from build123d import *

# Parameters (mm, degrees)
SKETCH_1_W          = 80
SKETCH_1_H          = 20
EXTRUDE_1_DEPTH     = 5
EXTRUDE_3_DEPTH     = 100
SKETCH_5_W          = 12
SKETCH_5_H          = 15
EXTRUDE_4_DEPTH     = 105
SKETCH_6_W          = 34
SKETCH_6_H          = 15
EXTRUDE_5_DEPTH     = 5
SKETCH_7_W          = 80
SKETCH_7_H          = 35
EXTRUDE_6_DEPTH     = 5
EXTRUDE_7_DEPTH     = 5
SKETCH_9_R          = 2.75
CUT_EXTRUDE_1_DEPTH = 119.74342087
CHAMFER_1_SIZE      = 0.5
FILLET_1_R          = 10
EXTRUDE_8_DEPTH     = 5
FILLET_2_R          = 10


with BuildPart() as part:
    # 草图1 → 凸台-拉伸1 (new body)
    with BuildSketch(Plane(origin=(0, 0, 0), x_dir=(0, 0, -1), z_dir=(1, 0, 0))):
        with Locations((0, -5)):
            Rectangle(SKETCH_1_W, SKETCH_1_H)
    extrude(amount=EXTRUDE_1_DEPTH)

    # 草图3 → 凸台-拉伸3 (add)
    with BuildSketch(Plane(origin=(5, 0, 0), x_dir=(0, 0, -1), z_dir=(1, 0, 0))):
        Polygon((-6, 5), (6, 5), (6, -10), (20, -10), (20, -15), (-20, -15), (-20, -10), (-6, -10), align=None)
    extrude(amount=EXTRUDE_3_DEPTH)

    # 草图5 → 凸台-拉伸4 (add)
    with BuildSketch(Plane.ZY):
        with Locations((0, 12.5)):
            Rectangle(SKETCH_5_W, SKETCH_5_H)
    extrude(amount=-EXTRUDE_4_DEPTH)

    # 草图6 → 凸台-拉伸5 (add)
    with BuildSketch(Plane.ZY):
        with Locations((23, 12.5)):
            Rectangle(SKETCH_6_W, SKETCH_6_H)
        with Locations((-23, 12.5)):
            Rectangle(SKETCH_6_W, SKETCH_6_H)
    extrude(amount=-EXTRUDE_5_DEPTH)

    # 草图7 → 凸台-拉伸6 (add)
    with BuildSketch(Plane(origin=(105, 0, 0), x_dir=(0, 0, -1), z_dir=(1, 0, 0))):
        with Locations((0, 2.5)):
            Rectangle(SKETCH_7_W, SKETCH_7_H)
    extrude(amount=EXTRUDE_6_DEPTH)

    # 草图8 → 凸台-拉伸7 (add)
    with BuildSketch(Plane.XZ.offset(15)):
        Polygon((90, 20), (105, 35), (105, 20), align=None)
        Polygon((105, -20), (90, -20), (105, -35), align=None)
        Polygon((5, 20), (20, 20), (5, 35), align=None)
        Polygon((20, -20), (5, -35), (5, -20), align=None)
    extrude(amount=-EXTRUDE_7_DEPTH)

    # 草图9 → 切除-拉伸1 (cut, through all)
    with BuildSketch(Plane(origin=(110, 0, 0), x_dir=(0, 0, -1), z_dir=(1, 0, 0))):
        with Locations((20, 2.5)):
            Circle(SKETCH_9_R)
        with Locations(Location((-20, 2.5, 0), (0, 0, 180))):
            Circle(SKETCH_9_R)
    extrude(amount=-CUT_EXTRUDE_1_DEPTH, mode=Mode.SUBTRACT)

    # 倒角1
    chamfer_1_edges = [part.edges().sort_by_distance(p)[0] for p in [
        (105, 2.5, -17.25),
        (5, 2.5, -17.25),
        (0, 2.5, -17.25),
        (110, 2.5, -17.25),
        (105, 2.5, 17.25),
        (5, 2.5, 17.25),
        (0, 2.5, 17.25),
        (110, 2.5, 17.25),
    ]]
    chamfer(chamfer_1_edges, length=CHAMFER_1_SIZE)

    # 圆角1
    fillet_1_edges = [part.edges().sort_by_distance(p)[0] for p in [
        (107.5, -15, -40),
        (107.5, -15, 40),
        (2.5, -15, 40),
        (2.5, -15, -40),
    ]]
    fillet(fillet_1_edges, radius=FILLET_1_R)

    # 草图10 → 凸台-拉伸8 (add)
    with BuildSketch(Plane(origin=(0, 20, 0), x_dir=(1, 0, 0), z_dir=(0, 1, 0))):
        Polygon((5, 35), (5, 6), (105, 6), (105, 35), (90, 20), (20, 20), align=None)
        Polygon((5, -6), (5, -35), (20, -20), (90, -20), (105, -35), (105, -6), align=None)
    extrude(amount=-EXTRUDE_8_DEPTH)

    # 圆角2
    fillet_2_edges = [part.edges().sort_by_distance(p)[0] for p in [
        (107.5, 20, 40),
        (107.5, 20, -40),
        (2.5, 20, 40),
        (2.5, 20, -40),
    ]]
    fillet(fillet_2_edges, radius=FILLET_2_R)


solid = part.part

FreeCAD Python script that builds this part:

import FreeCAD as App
import Part
import Sketcher

V = App.Vector
Q = App.Units.Quantity


def edges_at(feature, points):
    """Names of the edges that pass closest to the given points."""
    edges = feature.Shape.Edges
    near = lambda p: min(range(len(edges)), key=lambda i: edges[i].distToShape(Part.Vertex(*p))[0])
    return sorted({f"Edge{near(p) + 1}" for p in points})


def add_polygon(sketch, points):
    """Adds a closed chain of lines whose ends are joined by coincident constraints."""
    first, n = sketch.GeometryCount, len(points)
    for a, b in zip(points, points[1:] + points[:1]):
        sketch.addGeometry(Part.LineSegment(App.Vector(*a, 0), App.Vector(*b, 0)), False)
    for i in range(n):
        sketch.addConstraint(Sketcher.Constraint("Coincident", first + i, 2, first + (i + 1) % n, 1))

doc = App.newDocument("Part")
body = doc.addObject("PartDesign::Body", "Body")

# Sketch on YZ plane
sketch1 = body.newObject("Sketcher::SketchObject", "Sketch")
sketch1.AttachmentSupport = (doc.getObject("YZ_Plane"), [""])
sketch1.MapMode = "FlatFace"
add_polygon(sketch1, [(5, 40), (-15, 40), (-15, -40), (5, -40)])  # lines 0-3
sketch1.addConstraint(Sketcher.Constraint("Horizontal", 0))
sketch1.addConstraint(Sketcher.Constraint("Vertical", 1))
sketch1.addConstraint(Sketcher.Constraint("Horizontal", 2))
sketch1.addConstraint(Sketcher.Constraint("Vertical", 3))
sketch1.addConstraint(Sketcher.Constraint("DistanceX", 0, 2, 0, 1, Q("20 mm")))
sketch1.addConstraint(Sketcher.Constraint("DistanceY", 1, 2, 1, 1, Q("80 mm")))
sketch1.addConstraint(Sketcher.Constraint("DistanceX", 0, 2, -1, 1, Q("15 mm")))
sketch1.addConstraint(Sketcher.Constraint("DistanceY", -1, 1, 0, 2, Q("40 mm")))
pad1 = body.newObject("PartDesign::Pad", "Pad")
pad1.Profile = sketch1
pad1.Length = 5

# Sketch on YZ plane
sketch2 = body.newObject("Sketcher::SketchObject", "Sketch001")
sketch2.AttachmentSupport = (doc.getObject("YZ_Plane"), [""])
sketch2.MapMode = "FlatFace"
sketch2.AttachmentOffset = App.Placement(V(0, 0, 5), App.Rotation())
add_polygon(sketch2, [(5, -6), (5, 6), (-10, 6), (-10, 20), (-15, 20), (-15, -20), (-10, -20), (-10, -6)])  # lines 0-7
sketch2.addConstraint(Sketcher.Constraint("Vertical", 0))
sketch2.addConstraint(Sketcher.Constraint("Horizontal", 1))
sketch2.addConstraint(Sketcher.Constraint("Vertical", 2))
sketch2.addConstraint(Sketcher.Constraint("Horizontal", 3))
sketch2.addConstraint(Sketcher.Constraint("Vertical", 4))
sketch2.addConstraint(Sketcher.Constraint("Horizontal", 5))
sketch2.addConstraint(Sketcher.Constraint("Vertical", 6))
sketch2.addConstraint(Sketcher.Constraint("Horizontal", 7))
sketch2.addConstraint(Sketcher.Constraint("Symmetric", 2, 2, 5, 2, -1))
sketch2.addConstraint(Sketcher.Constraint("Equal", 2, 6))
sketch2.addConstraint(Sketcher.Constraint("DistanceX", 1, 2, 1, 1, Q("15 mm")))
sketch2.addConstraint(Sketcher.Constraint("DistanceX", 3, 2, 3, 1, Q("5 mm")))
sketch2.addConstraint(Sketcher.Constraint("DistanceY", 0, 1, 0, 2, Q("12 mm")))
sketch2.addConstraint(Sketcher.Constraint("DistanceY", 2, 1, 2, 2, Q("14 mm")))
sketch2.addConstraint(Sketcher.Constraint("DistanceX", -1, 1, 0, 2, Q("5 mm")))
pad2 = body.newObject("PartDesign::Pad", "Pad001")
pad2.Profile = sketch2
pad2.Length = 100

# Sketch on YZ plane
sketch3 = body.newObject("Sketcher::SketchObject", "Sketch002")
sketch3.AttachmentSupport = (doc.getObject("YZ_Plane"), [""])
sketch3.MapMode = "FlatFace"
add_polygon(sketch3, [(20, -6), (5, -6), (5, 6), (20, 6)])  # lines 0-3
sketch3.addConstraint(Sketcher.Constraint("Horizontal", 0))
sketch3.addConstraint(Sketcher.Constraint("Vertical", 1))
sketch3.addConstraint(Sketcher.Constraint("Horizontal", 2))
sketch3.addConstraint(Sketcher.Constraint("Vertical", 3))
sketch3.addConstraint(Sketcher.Constraint("DistanceX", 0, 2, 0, 1, Q("15 mm")))
sketch3.addConstraint(Sketcher.Constraint("DistanceY", 1, 1, 1, 2, Q("12 mm")))
sketch3.addConstraint(Sketcher.Constraint("DistanceX", -1, 1, 0, 2, Q("5 mm")))
sketch3.addConstraint(Sketcher.Constraint("DistanceY", 0, 2, -1, 1, Q("6 mm")))
pad3 = body.newObject("PartDesign::Pad", "Pad002")
pad3.Profile = sketch3
pad3.Length = 105

# Sketch on YZ plane
sketch4 = body.newObject("Sketcher::SketchObject", "Sketch003")
sketch4.AttachmentSupport = (doc.getObject("YZ_Plane"), [""])
sketch4.MapMode = "FlatFace"
add_polygon(sketch4, [(20, 6), (5, 6), (5, 40), (20, 40)])  # lines 0-3
add_polygon(sketch4, [(20, -40), (5, -40), (5, -6), (20, -6)])  # lines 4-7
sketch4.addConstraint(Sketcher.Constraint("Horizontal", 0))
sketch4.addConstraint(Sketcher.Constraint("Vertical", 1))
sketch4.addConstraint(Sketcher.Constraint("Horizontal", 2))
sketch4.addConstraint(Sketcher.Constraint("Vertical", 3))
sketch4.addConstraint(Sketcher.Constraint("Horizontal", 4))
sketch4.addConstraint(Sketcher.Constraint("Vertical", 5))
sketch4.addConstraint(Sketcher.Constraint("Horizontal", 6))
sketch4.addConstraint(Sketcher.Constraint("Vertical", 7))
sketch4.addConstraint(Sketcher.Constraint("Symmetric", 1, 2, 4, 2, -1))
sketch4.addConstraint(Sketcher.Constraint("Symmetric", 3, 2, 6, 2, -1))
sketch4.addConstraint(Sketcher.Constraint("DistanceX", 0, 2, 0, 1, Q("15 mm")))
sketch4.addConstraint(Sketcher.Constraint("DistanceY", 1, 1, 1, 2, Q("34 mm")))
sketch4.addConstraint(Sketcher.Constraint("DistanceX", -1, 1, 0, 2, Q("5 mm")))
sketch4.addConstraint(Sketcher.Constraint("DistanceY", -1, 1, 0, 2, Q("6 mm")))
pad4 = body.newObject("PartDesign::Pad", "Pad003")
pad4.Profile = sketch4
pad4.Length = 5

# Sketch on YZ plane
sketch5 = body.newObject("Sketcher::SketchObject", "Sketch004")
sketch5.AttachmentSupport = (doc.getObject("YZ_Plane"), [""])
sketch5.MapMode = "FlatFace"
sketch5.AttachmentOffset = App.Placement(V(0, 0, 105), App.Rotation())
add_polygon(sketch5, [(20, 40), (-15, 40), (-15, -40), (20, -40)])  # lines 0-3
sketch5.addConstraint(Sketcher.Constraint("Horizontal", 0))
sketch5.addConstraint(Sketcher.Constraint("Vertical", 1))
sketch5.addConstraint(Sketcher.Constraint("Horizontal", 2))
sketch5.addConstraint(Sketcher.Constraint("Vertical", 3))
sketch5.addConstraint(Sketcher.Constraint("DistanceX", 0, 2, 0, 1, Q("35 mm")))
sketch5.addConstraint(Sketcher.Constraint("DistanceY", 1, 2, 1, 1, Q("80 mm")))
sketch5.addConstraint(Sketcher.Constraint("DistanceX", 0, 2, -1, 1, Q("15 mm")))
sketch5.addConstraint(Sketcher.Constraint("DistanceY", -1, 1, 0, 2, Q("40 mm")))
pad5 = body.newObject("PartDesign::Pad", "Pad004")
pad5.Profile = sketch5
pad5.Length = 5

# Sketch on XZ plane
sketch6 = body.newObject("Sketcher::SketchObject", "Sketch005")
sketch6.AttachmentSupport = (doc.getObject("XZ_Plane"), [""])
sketch6.MapMode = "FlatFace"
sketch6.AttachmentOffset = App.Placement(V(0, 0, 15), App.Rotation())
add_polygon(sketch6, [(105, 35), (90, 20), (105, 20)])  # lines 0-2
add_polygon(sketch6, [(105, -20), (90, -20), (105, -35)])  # lines 3-5
add_polygon(sketch6, [(5, 20), (20, 20), (5, 35)])  # lines 6-8
add_polygon(sketch6, [(5, -35), (20, -20), (5, -20)])  # lines 9-11
sketch6.addConstraint(Sketcher.Constraint("Horizontal", 1))
sketch6.addConstraint(Sketcher.Constraint("Vertical", 2))
sketch6.addConstraint(Sketcher.Constraint("Horizontal", 3))
sketch6.addConstraint(Sketcher.Constraint("Vertical", 5))
sketch6.addConstraint(Sketcher.Constraint("Horizontal", 6))
sketch6.addConstraint(Sketcher.Constraint("Vertical", 8))
sketch6.addConstraint(Sketcher.Constraint("Horizontal", 10))
sketch6.addConstraint(Sketcher.Constraint("Vertical", 11))
sketch6.addConstraint(Sketcher.Constraint("Symmetric", 0, 2, 3, 2, -1))
sketch6.addConstraint(Sketcher.Constraint("Symmetric", 2, 2, 4, 2, -1))
sketch6.addConstraint(Sketcher.Constraint("Symmetric", 6, 2, 9, 2, -1))
sketch6.addConstraint(Sketcher.Constraint("Symmetric", 7, 2, 11, 2, -1))
sketch6.addConstraint(Sketcher.Constraint("Perpendicular", 0, 4))
sketch6.addConstraint(Sketcher.Constraint("Parallel", 4, 7))
sketch6.addConstraint(Sketcher.Constraint("Horizontal", 1, 2, 6, 2))
sketch6.addConstraint(Sketcher.Constraint("Horizontal", 2, 2, 7, 2))
sketch6.addConstraint(Sketcher.Constraint("DistanceX", 1, 1, 1, 2, Q("15 mm")))
sketch6.addConstraint(Sketcher.Constraint("DistanceX", -1, 1, 0, 2, Q("90 mm")))
sketch6.addConstraint(Sketcher.Constraint("DistanceY", -1, 1, 0, 2, Q("20 mm")))
sketch6.addConstraint(Sketcher.Constraint("DistanceX", -1, 1, 6, 2, Q("20 mm")))
pad6 = body.newObject("PartDesign::Pad", "Pad005")
pad6.Profile = sketch6
pad6.Length = 5
pad6.Reversed = True

# Sketch on YZ plane
sketch7 = body.newObject("Sketcher::SketchObject", "Sketch006")
sketch7.AttachmentSupport = (doc.getObject("YZ_Plane"), [""])
sketch7.MapMode = "FlatFace"
sketch7.AttachmentOffset = App.Placement(V(0, 0, 110), App.Rotation())
sketch7.addGeometry(Part.Circle(V(2.5, -20, 0), V(0, 0, 1), 2.8), False)
sketch7.addGeometry(Part.Circle(V(2.5, 20, 0), V(0, 0, 1), 2.8), False)
sketch7.addConstraint(Sketcher.Constraint("Equal", 0, 1))
sketch7.addConstraint(Sketcher.Constraint("Symmetric", 0, 3, 1, 3, -1))
sketch7.addConstraint(Sketcher.Constraint("Diameter", 0, Q("5.5 mm")))
sketch7.addConstraint(Sketcher.Constraint("DistanceY", 0, 3, -1, 1, Q("20 mm")))
sketch7.addConstraint(Sketcher.Constraint("DistanceX", -1, 1, 0, 3, Q("2.5 mm")))
pocket1 = body.newObject("PartDesign::Pocket", "Pocket")
pocket1.Profile = sketch7
pocket1.Type = "ThroughAll"
doc.recompute()

chamfer = body.newObject("PartDesign::Chamfer", "Chamfer")
chamfer.Base = (pocket1, edges_at(pocket1, [
    (105, 2.5, -17.25),
    (5, 2.5, -17.25),
    (0, 2.5, -17.25),
    (110, 2.5, -17.25),
    (105, 2.5, 17.25),
    (5, 2.5, 17.25),
    (0, 2.5, 17.25),
    (110, 2.5, 17.25),
]))
chamfer.Size = 0.5
doc.recompute()

fillet = body.newObject("PartDesign::Fillet", "Fillet")
fillet.Base = (chamfer, edges_at(chamfer, [
    (107.5, -15, -40),
    (107.5, -15, 40),
    (2.5, -15, 40),
    (2.5, -15, -40),
]))
fillet.Radius = 10

# Sketch on XZ plane
sketch8 = body.newObject("Sketcher::SketchObject", "Sketch007")
sketch8.AttachmentSupport = (doc.getObject("XZ_Plane"), [""])
sketch8.MapMode = "FlatFace"
sketch8.AttachmentOffset = App.Placement(V(0, 0, -20), App.Rotation())
add_polygon(sketch8, [(5, -35), (5, -6), (105, -6), (105, -35), (90, -20), (20, -20)])  # lines 0-5
add_polygon(sketch8, [(5, 6), (5, 35), (20, 20), (90, 20), (105, 35), (105, 6)])  # lines 6-11
sketch8.addConstraint(Sketcher.Constraint("Vertical", 0))
sketch8.addConstraint(Sketcher.Constraint("Horizontal", 1))
sketch8.addConstraint(Sketcher.Constraint("Vertical", 2))
sketch8.addConstraint(Sketcher.Constraint("Horizontal", 4))
sketch8.addConstraint(Sketcher.Constraint("Vertical", 6))
sketch8.addConstraint(Sketcher.Constraint("Horizontal", 8))
sketch8.addConstraint(Sketcher.Constraint("Vertical", 10))
sketch8.addConstraint(Sketcher.Constraint("Horizontal", 11))
sketch8.addConstraint(Sketcher.Constraint("Symmetric", 5, 2, 6, 2, -1))
sketch8.addConstraint(Sketcher.Constraint("Symmetric", 4, 2, 7, 2, -1))
sketch8.addConstraint(Sketcher.Constraint("Symmetric", 2, 2, 9, 2, -1))
sketch8.addConstraint(Sketcher.Constraint("Perpendicular", 3, 5))
sketch8.addConstraint(Sketcher.Constraint("Perpendicular", 5, 7))
sketch8.addConstraint(Sketcher.Constraint("Perpendicular", 7, 9))
sketch8.addConstraint(Sketcher.Constraint("Horizontal", 2, 2, 5, 2))
sketch8.addConstraint(Sketcher.Constraint("Equal", 2, 6))
sketch8.addConstraint(Sketcher.Constraint("DistanceX", 1, 1, 1, 2, Q("100 mm")))
sketch8.addConstraint(Sketcher.Constraint("DistanceX", 4, 2, 4, 1, Q("70 mm")))
sketch8.addConstraint(Sketcher.Constraint("DistanceY", 0, 1, 0, 2, Q("29 mm")))
sketch8.addConstraint(Sketcher.Constraint("DistanceX", -1, 1, 0, 2, Q("5 mm")))
sketch8.addConstraint(Sketcher.Constraint("DistanceY", 0, 2, -1, 1, Q("6 mm")))
pad7 = body.newObject("PartDesign::Pad", "Pad006")
pad7.Profile = sketch8
pad7.Length = 5
doc.recompute()

fillet2 = body.newObject("PartDesign::Fillet", "Fillet001")
fillet2.Base = (pad7, edges_at(pad7, [
    (107.5, 20, 40),
    (107.5, 20, -40),
    (2.5, 20, 40),
    (2.5, 20, -40),
]))
fillet2.Radius = 10

doc.recompute()
